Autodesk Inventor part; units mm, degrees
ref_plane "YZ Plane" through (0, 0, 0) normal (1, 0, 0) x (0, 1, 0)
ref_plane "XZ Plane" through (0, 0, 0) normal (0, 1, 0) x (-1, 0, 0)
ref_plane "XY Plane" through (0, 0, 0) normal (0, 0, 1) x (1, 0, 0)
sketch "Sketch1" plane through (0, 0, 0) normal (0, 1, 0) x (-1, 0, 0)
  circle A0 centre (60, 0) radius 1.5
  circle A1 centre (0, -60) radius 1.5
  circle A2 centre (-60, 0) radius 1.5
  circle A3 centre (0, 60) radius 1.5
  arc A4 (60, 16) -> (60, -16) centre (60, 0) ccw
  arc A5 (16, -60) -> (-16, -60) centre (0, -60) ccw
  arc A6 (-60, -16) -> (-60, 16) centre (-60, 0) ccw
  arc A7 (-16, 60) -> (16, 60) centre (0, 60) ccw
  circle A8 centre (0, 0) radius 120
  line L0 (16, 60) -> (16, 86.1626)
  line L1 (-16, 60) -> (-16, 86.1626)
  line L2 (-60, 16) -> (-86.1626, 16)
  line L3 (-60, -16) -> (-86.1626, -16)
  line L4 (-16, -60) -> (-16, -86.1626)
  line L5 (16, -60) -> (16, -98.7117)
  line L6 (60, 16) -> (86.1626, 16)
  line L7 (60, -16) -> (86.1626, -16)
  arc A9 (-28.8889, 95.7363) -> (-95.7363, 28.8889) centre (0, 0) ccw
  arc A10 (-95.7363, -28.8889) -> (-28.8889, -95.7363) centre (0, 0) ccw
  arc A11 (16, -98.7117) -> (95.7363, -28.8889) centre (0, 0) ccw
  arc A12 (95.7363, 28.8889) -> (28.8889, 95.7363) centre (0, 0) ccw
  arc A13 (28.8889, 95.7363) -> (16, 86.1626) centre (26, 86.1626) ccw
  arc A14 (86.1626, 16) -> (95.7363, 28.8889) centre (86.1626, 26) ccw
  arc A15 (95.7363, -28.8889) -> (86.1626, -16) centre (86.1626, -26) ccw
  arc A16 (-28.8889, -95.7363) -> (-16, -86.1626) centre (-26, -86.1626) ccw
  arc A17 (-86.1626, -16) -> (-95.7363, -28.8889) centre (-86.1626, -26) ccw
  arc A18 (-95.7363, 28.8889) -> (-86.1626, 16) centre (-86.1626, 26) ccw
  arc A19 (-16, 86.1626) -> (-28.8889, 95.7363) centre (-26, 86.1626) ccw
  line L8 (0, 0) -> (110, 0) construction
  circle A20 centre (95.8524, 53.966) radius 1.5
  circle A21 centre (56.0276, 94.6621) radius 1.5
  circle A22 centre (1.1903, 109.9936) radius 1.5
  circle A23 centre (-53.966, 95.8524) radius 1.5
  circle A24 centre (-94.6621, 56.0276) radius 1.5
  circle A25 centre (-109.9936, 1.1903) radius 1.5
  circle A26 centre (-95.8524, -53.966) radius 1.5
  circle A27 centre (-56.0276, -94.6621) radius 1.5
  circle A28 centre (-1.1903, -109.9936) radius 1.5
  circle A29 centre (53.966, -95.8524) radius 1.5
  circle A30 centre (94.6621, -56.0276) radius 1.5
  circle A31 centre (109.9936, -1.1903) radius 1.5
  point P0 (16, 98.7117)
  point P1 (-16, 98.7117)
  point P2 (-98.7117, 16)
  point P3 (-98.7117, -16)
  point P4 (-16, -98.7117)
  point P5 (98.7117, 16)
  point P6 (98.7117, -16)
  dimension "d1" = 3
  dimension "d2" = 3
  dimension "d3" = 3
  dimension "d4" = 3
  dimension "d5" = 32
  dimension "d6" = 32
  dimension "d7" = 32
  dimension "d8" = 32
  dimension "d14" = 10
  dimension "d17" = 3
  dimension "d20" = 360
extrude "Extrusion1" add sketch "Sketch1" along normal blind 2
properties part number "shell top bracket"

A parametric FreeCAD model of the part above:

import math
import FreeCAD as App
import Part
import Sketcher
from FreeCAD import Vector
Q = App.Units.Quantity

doc = App.newDocument("Part")
params = doc.addObject("Spreadsheet::Sheet", "Params")
for row, (alias, value) in enumerate([
    ("sketch1_diameter", "3 mm"),
    ("sketch1_radius", "16 mm"),
    ("sketch1_radius2", "10 mm"),
    ("sketch1_diameter2", "240 mm"),
    ("sketch1_radius3", "100 mm"),
    ("pad1_length", "2 mm"),
], start=1):
    params.set(f"A{row}", alias)
    params.set(f"B{row}", "=" + value)
    params.setAlias(f"B{row}", alias)

body = doc.addObject("PartDesign::Body", "Body")

# Sketch on XZ plane
sketch1 = body.newObject("Sketcher::SketchObject", "Sketch")
sketch1.AttachmentSupport = (doc.getObject("XZ_Plane"), [""])
sketch1.MapMode = "FlatFace"
sketch1.addGeometry(Part.Circle(Vector(0, 0, 0), Vector(0, 0, 1), 120), False)
sketch1.addGeometry(Part.Circle(Vector(56, -94.7, 0), Vector(0, 0, 1), 1.5), False)
sketch1.addGeometry(Part.Circle(Vector(1.2, -110, 0), Vector(0, 0, 1), 1.5), False)
sketch1.addGeometry(Part.Circle(Vector(95.9, -54, 0), Vector(0, 0, 1), 1.5), False)
sketch1.addGeometry(Part.Circle(Vector(-54, -95.9, 0), Vector(0, 0, 1), 1.5), False)
sketch1.addGeometry(Part.Circle(Vector(0, -60, 0), Vector(0, 0, 1), 1.5), False)
sketch1.addGeometry(Part.LineSegment(Vector(-86.2, 16, 0), Vector(-60, 16, 0)), False)
sketch1.addGeometry(Part.ArcOfCircle(Part.Circle(Vector(-60, 0, 0), Vector(0, 0, 1), 16), math.radians(-90), math.radians(90)), False)
sketch1.addGeometry(Part.LineSegment(Vector(-60, -16, 0), Vector(-86.2, -16, 0)), False)
sketch1.addGeometry(Part.ArcOfCircle(Part.Circle(Vector(-86.2, -26, 0), Vector(0, 0, 1), 10), math.radians(90), math.radians(197)), False)
sketch1.addGeometry(Part.ArcOfCircle(Part.Circle(Vector(0, 0, 0), Vector(0, 0, 1), 100), math.radians(-163), math.radians(-99)), False)
sketch1.addGeometry(Part.LineSegment(Vector(-16, -98.7, 0), Vector(-16, -60, 0)), False)
sketch1.addGeometry(Part.ArcOfCircle(Part.Circle(Vector(0, -60, 0), Vector(0, 0, 1), 16), math.radians(0), math.radians(180)), False)
sketch1.addGeometry(Part.LineSegment(Vector(16, -60, 0), Vector(16, -86.2, 0)), False)
sketch1.addGeometry(Part.ArcOfCircle(Part.Circle(Vector(26, -86.2, 0), Vector(0, 0, 1), 10), math.radians(180), math.radians(287)), False)
sketch1.addGeometry(Part.ArcOfCircle(Part.Circle(Vector(0, 0, 0), Vector(0, 0, 1), 100), math.radians(-73), math.radians(-17)), False)
sketch1.addGeometry(Part.ArcOfCircle(Part.Circle(Vector(86.2, -26, 0), Vector(0, 0, 1), 10), math.radians(-17), math.radians(90)), False)
sketch1.addGeometry(Part.LineSegment(Vector(86.2, -16, 0), Vector(60, -16, 0)), False)
sketch1.addGeometry(Part.ArcOfCircle(Part.Circle(Vector(60, 0, 0), Vector(0, 0, 1), 16), math.radians(90), math.radians(270)), False)
sketch1.addGeometry(Part.LineSegment(Vector(60, 16, 0), Vector(86.2, 16, 0)), False)
sketch1.addGeometry(Part.ArcOfCircle(Part.Circle(Vector(86.2, 26, 0), Vector(0, 0, 1), 10), math.radians(-90), math.radians(17)), False)
sketch1.addGeometry(Part.ArcOfCircle(Part.Circle(Vector(0, 0, 0), Vector(0, 0, 1), 100), math.radians(17), math.radians(73)), False)
sketch1.addGeometry(Part.ArcOfCircle(Part.Circle(Vector(26, 86.2, 0), Vector(0, 0, 1), 10), math.radians(73), math.radians(180)), False)
sketch1.addGeometry(Part.LineSegment(Vector(16, 86.2, 0), Vector(16, 60, 0)), False)
sketch1.addGeometry(Part.ArcOfCircle(Part.Circle(Vector(0, 60, 0), Vector(0, 0, 1), 16), math.radians(180), math.radians(360)), False)
sketch1.addGeometry(Part.LineSegment(Vector(-16, 60, 0), Vector(-16, 86.2, 0)), False)
sketch1.addGeometry(Part.ArcOfCircle(Part.Circle(Vector(-26, 86.2, 0), Vector(0, 0, 1), 10), math.radians(0), math.radians(107)), False)
sketch1.addGeometry(Part.ArcOfCircle(Part.Circle(Vector(0, 0, 0), Vector(0, 0, 1), 100), math.radians(107), math.radians(163)), False)
sketch1.addGeometry(Part.ArcOfCircle(Part.Circle(Vector(-86.2, 26, 0), Vector(0, 0, 1), 10), math.radians(163), math.radians(270)), False)
sketch1.addGeometry(Part.Circle(Vector(-94.7, -56, 0), Vector(0, 0, 1), 1.5), False)
sketch1.addGeometry(Part.Circle(Vector(-110, -1.2, 0), Vector(0, 0, 1), 1.5), False)
sketch1.addGeometry(Part.Circle(Vector(110, 1.2, 0), Vector(0, 0, 1), 1.5), False)
sketch1.addGeometry(Part.Circle(Vector(94.7, 56, 0), Vector(0, 0, 1), 1.5), False)
sketch1.addGeometry(Part.Circle(Vector(60, 0, 0), Vector(0, 0, 1), 1.5), False)
sketch1.addGeometry(Part.Circle(Vector(54, 95.9, 0), Vector(0, 0, 1), 1.5), False)
sketch1.addGeometry(Part.Circle(Vector(-60, 0, 0), Vector(0, 0, 1), 1.5), False)
sketch1.addGeometry(Part.Circle(Vector(-95.9, 54, 0), Vector(0, 0, 1), 1.5), False)
sketch1.addGeometry(Part.Circle(Vector(0, 60, 0), Vector(0, 0, 1), 1.5), False)
sketch1.addGeometry(Part.Circle(Vector(-1.2, 110, 0), Vector(0, 0, 1), 1.5), False)
sketch1.addGeometry(Part.Circle(Vector(-56, 94.7, 0), Vector(0, 0, 1), 1.5), False)
sketch1.addConstraint(Sketcher.Constraint("Tangent", 6, 2, 7, 2))
sketch1.addConstraint(Sketcher.Constraint("Tangent", 7, 1, 8, 1))
sketch1.addConstraint(Sketcher.Constraint("Tangent", 8, 2, 9, 1))
sketch1.addConstraint(Sketcher.Constraint("Tangent", 9, 2, 10, 1))
sketch1.addConstraint(Sketcher.Constraint("Coincident", 10, 2, 11, 1))
sketch1.addConstraint(Sketcher.Constraint("Tangent", 11, 2, 12, 2))
sketch1.addConstraint(Sketcher.Constraint("Tangent", 12, 1, 13, 1))
sketch1.addConstraint(Sketcher.Constraint("Tangent", 13, 2, 14, 1))
sketch1.addConstraint(Sketcher.Constraint("Tangent", 14, 2, 15, 1))
sketch1.addConstraint(Sketcher.Constraint("Tangent", 15, 2, 16, 1))
sketch1.addConstraint(Sketcher.Constraint("Tangent", 16, 2, 17, 1))
sketch1.addConstraint(Sketcher.Constraint("Tangent", 17, 2, 18, 2))
sketch1.addConstraint(Sketcher.Constraint("Tangent", 18, 1, 19, 1))
sketch1.addConstraint(Sketcher.Constraint("Tangent", 19, 2, 20, 1))
sketch1.addConstraint(Sketcher.Constraint("Tangent", 20, 2, 21, 1))
sketch1.addConstraint(Sketcher.Constraint("Tangent", 21, 2, 22, 1))
sketch1.addConstraint(Sketcher.Constraint("Tangent", 22, 2, 23, 1))
sketch1.addConstraint(Sketcher.Constraint("Tangent", 23, 2, 24, 2))
sketch1.addConstraint(Sketcher.Constraint("Tangent", 24, 1, 25, 1))
sketch1.addConstraint(Sketcher.Constraint("Tangent", 25, 2, 26, 1))
sketch1.addConstraint(Sketcher.Constraint("Tangent", 26, 2, 27, 1))
sketch1.addConstraint(Sketcher.Constraint("Tangent", 27, 2, 28, 1))
sketch1.addConstraint(Sketcher.Constraint("Tangent", 28, 2, 6, 1))
sketch1.addConstraint(Sketcher.Constraint("Horizontal", 6))
sketch1.addConstraint(Sketcher.Constraint("Horizontal", 8))
sketch1.addConstraint(Sketcher.Constraint("Vertical", 11))
sketch1.addConstraint(Sketcher.Constraint("Vertical", 13))
sketch1.addConstraint(Sketcher.Constraint("Horizontal", 17))
sketch1.addConstraint(Sketcher.Constraint("Horizontal", 19))
sketch1.addConstraint(Sketcher.Constraint("Vertical", 23))
sketch1.addConstraint(Sketcher.Constraint("Vertical", 25))
sketch1.addConstraint(Sketcher.Constraint("Coincident", 0, 3, -1, 1))
sketch1.addConstraint(Sketcher.Constraint("Coincident", 10, 3, -1, 1))
sketch1.addConstraint(Sketcher.Constraint("Coincident", 15, 3, -1, 1))
sketch1.addConstraint(Sketcher.Constraint("Coincident", 21, 3, -1, 1))
sketch1.addConstraint(Sketcher.Constraint("Coincident", 27, 3, -1, 1))
sketch1.addConstraint(Sketcher.Constraint("Coincident", 12, 3, 5, 3))
sketch1.addConstraint(Sketcher.Constraint("Coincident", 33, 3, 18, 3))
sketch1.addConstraint(Sketcher.Constraint("Coincident", 35, 3, 7, 3))
sketch1.addConstraint(Sketcher.Constraint("Coincident", 37, 3, 24, 3))
sketch1.addConstraint(Sketcher.Constraint("Equal", 1, 2))
sketch1.addConstraint(Sketcher.Constraint("Equal", 2, 3))
sketch1.addConstraint(Sketcher.Constraint("Equal", 3, 4))
sketch1.addConstraint(Sketcher.Constraint("Equal", 4, 5))
sketch1.addConstraint(Sketcher.Constraint("Equal", 7, 12))
sketch1.addConstraint(Sketcher.Constraint("Equal", 9, 14))
sketch1.addConstraint(Sketcher.Constraint("Equal", 10, 15))
sketch1.addConstraint(Sketcher.Constraint("Equal", 14, 16))
sketch1.addConstraint(Sketcher.Constraint("Equal", 12, 18))
sketch1.addConstraint(Sketcher.Constraint("Equal", 16, 20))
sketch1.addConstraint(Sketcher.Constraint("Equal", 15, 21))
sketch1.addConstraint(Sketcher.Constraint("Equal", 20, 22))
sketch1.addConstraint(Sketcher.Constraint("Equal", 18, 24))
sketch1.addConstraint(Sketcher.Constraint("Equal", 22, 26))
sketch1.addConstraint(Sketcher.Constraint("Equal", 21, 27))
sketch1.addConstraint(Sketcher.Constraint("Equal", 26, 28))
sketch1.addConstraint(Sketcher.Constraint("Equal", 5, 29))
sketch1.addConstraint(Sketcher.Constraint("Equal", 29, 30))
sketch1.addConstraint(Sketcher.Constraint("Equal", 30, 31))
sketch1.addConstraint(Sketcher.Constraint("Equal", 31, 32))
sketch1.addConstraint(Sketcher.Constraint("Equal", 32, 33))
sketch1.addConstraint(Sketcher.Constraint("Equal", 33, 34))
sketch1.addConstraint(Sketcher.Constraint("Equal", 34, 35))
sketch1.addConstraint(Sketcher.Constraint("Equal", 35, 36))
sketch1.addConstraint(Sketcher.Constraint("Equal", 36, 37))
sketch1.addConstraint(Sketcher.Constraint("Equal", 37, 38))
sketch1.addConstraint(Sketcher.Constraint("Equal", 38, 39))
sketch1.addConstraint(Sketcher.Constraint("Symmetric", 7, 3, 18, 3, -1, 1))
sketch1.addConstraint(Sketcher.Constraint("Symmetric", 5, 3, 24, 3, -1, 1))
sketch1.addConstraint(Sketcher.Constraint("Symmetric", 30, 3, 31, 3, -1, 1))
sketch1.addConstraint(Sketcher.Constraint("Symmetric", 29, 3, 32, 3, -1, 1))
sketch1.addConstraint(Sketcher.Constraint("Symmetric", 4, 3, 34, 3, -1, 1))
sketch1.addConstraint(Sketcher.Constraint("Symmetric", 3, 3, 36, 3, -1, 1))
sketch1.addConstraint(Sketcher.Constraint("Symmetric", 2, 3, 38, 3, -1, 1))
sketch1.addConstraint(Sketcher.Constraint("Symmetric", 1, 3, 39, 3, -1, 1))
sketch1.addConstraint(Sketcher.Constraint("PointOnObject", 5, 3, -2))
sketch1.addConstraint(Sketcher.Constraint("PointOnObject", 7, 3, -1))
sketch1.addConstraint(Sketcher.Constraint("Equal", 19, 13))
sketch1.addConstraint(Sketcher.Constraint("Diameter", 1, Q("3 mm")))
sketch1.addConstraint(Sketcher.Constraint("Radius", 7, Q("16 mm")))
sketch1.addConstraint(Sketcher.Constraint("Radius", 9, Q("10 mm")))
sketch1.addConstraint(Sketcher.Constraint("Diameter", 0, Q("240 mm")))
sketch1.addConstraint(Sketcher.Constraint("Radius", 10, Q("100 mm")))
sketch1.addConstraint(Sketcher.Constraint("DistanceY", 5, 3, -1, 1, Q("60 mm")))
sketch1.addConstraint(Sketcher.Constraint("DistanceY", 1, 3, -1, 1, Q("94.662 mm")))
sketch1.addConstraint(Sketcher.Constraint("DistanceY", 3, 3, -1, 1, Q("53.966 mm")))
sketch1.addConstraint(Sketcher.Constraint("DistanceX", 4, 3, -1, 1, Q("53.966 mm")))
sketch1.addConstraint(Sketcher.Constraint("DistanceX", 29, 3, -1, 1, Q("94.662 mm")))
sketch1.addConstraint(Sketcher.Constraint("DistanceX", 2, 3, 3, 3, Q("94.662 mm")))
sketch1.addConstraint(Sketcher.Constraint("DistanceX", 9, 3, 2, 3, Q("87.353 mm")))
sketch1.addConstraint(Sketcher.Constraint("DistanceY", 2, 3, 14, 3, Q("23.831 mm")))
sketch1.addConstraint(Sketcher.Constraint("DistanceX", 1, 3, 16, 3, Q("30.135 mm")))
sketch1.addConstraint(Sketcher.Constraint("DistanceX", 30, 3, 9, 3, Q("23.831 mm")))
sketch1.addConstraint(Sketcher.Constraint("DistanceY", 4, 3, 30, 3, Q("94.662 mm")))
sketch1.addConstraint(Sketcher.Constraint("DistanceY", 32, 3, 22, 3, Q("30.135 mm")))
sketch1.addConstraint(Sketcher.Constraint("DistanceY", 21, 2, 34, 3, Q("0.116 mm")))
sketch1.setExpression("Constraints[78]", "Params.sketch1_diameter")
sketch1.setExpression("Constraints[79]", "Params.sketch1_radius")
sketch1.setExpression("Constraints[80]", "Params.sketch1_radius2")
sketch1.setExpression("Constraints[81]", "Params.sketch1_diameter2")
sketch1.setExpression("Constraints[82]", "Params.sketch1_radius3")
pad1 = body.newObject("PartDesign::Pad", "Pad")
pad1.Profile = sketch1
pad1.setExpression("Length", "Params.pad1_length")
pad1.Reversed = True

doc.recompute()
